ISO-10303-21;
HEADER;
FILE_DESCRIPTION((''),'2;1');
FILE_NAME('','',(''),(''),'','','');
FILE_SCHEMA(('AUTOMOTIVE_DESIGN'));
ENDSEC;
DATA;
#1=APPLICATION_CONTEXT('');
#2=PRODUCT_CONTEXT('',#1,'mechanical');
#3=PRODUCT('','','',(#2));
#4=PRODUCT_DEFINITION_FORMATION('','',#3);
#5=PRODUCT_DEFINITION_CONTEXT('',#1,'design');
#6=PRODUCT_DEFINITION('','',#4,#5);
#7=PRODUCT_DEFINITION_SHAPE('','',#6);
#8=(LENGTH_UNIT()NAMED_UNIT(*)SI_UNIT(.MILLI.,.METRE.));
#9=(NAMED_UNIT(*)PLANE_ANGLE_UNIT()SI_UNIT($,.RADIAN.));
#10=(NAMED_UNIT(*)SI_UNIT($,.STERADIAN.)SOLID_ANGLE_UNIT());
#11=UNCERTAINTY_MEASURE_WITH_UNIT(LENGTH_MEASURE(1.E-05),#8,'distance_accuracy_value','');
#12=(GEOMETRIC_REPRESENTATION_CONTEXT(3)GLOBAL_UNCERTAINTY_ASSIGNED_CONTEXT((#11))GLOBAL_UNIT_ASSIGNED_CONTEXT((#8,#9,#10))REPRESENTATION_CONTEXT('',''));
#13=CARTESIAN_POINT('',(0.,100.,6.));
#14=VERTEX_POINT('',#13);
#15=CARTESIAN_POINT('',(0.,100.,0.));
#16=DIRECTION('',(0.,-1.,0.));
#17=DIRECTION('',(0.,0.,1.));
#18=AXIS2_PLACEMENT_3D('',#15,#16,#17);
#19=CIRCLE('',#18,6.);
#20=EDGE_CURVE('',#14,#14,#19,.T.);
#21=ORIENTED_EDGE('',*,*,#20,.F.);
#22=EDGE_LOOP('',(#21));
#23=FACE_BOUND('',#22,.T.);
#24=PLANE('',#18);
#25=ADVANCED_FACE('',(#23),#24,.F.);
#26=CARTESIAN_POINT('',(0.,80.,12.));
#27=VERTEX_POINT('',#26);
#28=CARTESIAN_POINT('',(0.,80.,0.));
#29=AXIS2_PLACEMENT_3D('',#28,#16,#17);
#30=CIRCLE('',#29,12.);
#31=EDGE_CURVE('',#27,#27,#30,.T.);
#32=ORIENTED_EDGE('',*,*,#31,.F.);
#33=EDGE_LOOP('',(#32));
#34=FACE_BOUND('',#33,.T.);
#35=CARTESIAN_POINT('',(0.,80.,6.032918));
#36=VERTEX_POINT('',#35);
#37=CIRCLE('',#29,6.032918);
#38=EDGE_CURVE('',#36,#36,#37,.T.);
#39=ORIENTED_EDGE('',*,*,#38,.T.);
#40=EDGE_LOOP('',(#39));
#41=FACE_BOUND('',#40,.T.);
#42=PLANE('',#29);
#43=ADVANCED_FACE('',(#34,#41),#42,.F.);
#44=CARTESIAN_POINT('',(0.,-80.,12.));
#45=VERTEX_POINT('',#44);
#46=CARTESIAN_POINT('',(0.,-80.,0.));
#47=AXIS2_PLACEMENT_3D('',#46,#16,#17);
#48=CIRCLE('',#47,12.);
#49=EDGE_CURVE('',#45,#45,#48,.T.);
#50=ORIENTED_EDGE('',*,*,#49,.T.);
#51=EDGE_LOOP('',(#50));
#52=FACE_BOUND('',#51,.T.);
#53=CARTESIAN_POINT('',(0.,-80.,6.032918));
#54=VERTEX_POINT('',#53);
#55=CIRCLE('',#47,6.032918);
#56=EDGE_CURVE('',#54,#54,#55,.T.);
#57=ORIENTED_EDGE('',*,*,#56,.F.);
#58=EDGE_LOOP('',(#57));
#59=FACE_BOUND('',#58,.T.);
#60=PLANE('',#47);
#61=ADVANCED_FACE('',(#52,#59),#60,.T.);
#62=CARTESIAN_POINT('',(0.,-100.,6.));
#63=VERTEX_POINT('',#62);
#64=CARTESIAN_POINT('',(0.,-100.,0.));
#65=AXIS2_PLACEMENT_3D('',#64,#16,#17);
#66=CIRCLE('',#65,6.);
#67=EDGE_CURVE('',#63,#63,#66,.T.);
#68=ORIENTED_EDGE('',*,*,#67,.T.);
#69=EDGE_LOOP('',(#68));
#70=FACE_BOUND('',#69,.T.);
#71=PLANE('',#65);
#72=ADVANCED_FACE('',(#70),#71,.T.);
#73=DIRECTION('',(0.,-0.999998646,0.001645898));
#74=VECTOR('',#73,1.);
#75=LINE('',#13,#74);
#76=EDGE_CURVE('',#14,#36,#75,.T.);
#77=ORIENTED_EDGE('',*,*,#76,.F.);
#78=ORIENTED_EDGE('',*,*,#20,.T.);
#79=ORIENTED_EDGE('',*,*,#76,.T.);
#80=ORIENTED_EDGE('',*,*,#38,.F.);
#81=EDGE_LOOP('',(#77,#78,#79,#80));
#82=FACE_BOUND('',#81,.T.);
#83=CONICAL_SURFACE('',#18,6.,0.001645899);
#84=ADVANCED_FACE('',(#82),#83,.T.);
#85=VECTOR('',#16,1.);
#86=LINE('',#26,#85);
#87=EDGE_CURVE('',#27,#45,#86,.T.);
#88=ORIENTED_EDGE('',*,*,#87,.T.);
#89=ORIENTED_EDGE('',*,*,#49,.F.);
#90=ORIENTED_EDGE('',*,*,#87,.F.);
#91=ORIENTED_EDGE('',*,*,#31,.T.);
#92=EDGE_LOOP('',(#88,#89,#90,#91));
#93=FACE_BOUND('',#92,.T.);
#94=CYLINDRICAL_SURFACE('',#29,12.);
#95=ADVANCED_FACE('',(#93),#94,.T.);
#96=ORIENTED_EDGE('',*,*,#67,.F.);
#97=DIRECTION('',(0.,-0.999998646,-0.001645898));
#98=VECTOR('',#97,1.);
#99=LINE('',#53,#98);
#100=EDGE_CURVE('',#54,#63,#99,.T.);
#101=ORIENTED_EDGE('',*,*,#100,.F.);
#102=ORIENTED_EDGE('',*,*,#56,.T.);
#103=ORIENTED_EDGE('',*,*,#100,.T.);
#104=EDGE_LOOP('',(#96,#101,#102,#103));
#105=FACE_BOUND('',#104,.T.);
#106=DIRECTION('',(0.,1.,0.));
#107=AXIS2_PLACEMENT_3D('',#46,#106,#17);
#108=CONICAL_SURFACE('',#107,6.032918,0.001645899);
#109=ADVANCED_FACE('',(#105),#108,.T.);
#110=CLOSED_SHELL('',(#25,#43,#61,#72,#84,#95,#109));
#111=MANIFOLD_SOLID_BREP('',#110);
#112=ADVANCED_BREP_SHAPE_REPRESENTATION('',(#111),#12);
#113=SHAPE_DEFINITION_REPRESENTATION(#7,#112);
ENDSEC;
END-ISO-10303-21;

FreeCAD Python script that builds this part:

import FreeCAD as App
import Part
import Sketcher


def add_polygon(sketch, points):
    """Adds a closed chain of lines whose ends are joined by coincident constraints."""
    first, n = sketch.GeometryCount, len(points)
    for a, b in zip(points, points[1:] + points[:1]):
        sketch.addGeometry(Part.LineSegment(App.Vector(*a, 0), App.Vector(*b, 0)), False)
    for i in range(n):
        sketch.addConstraint(Sketcher.Constraint("Coincident", first + i, 2, first + (i + 1) % n, 1))

doc = App.newDocument("Part")
params = doc.addObject("Spreadsheet::Sheet", "Params")
for row, (alias, value) in enumerate([
    ("sketch1_width", "200 mm"),
    ("sketch1_height", "6 mm"),
    ("revolution_angle", "360 deg"),
    ("sketch2_width", "160 mm"),
    ("revolution2_angle", "360 deg"),
], start=1):
    params.set(f"A{row}", alias)
    params.set(f"B{row}", "=" + value)
    params.setAlias(f"B{row}", alias)

body = doc.addObject("PartDesign::Body", "Body")

sketch1 = body.newObject("Sketcher::SketchObject", "Sketch")
sketch1.AttachmentSupport = (doc.getObject("YZ_Plane"), [""])
sketch1.MapMode = "FlatFace"
add_polygon(sketch1, [(100, 0), (100, 6), (80, 6), (0, 6), (-80, 6), (-100, 6), (-100, 0)])
sketch1.addConstraint([
    Sketcher.Constraint("Vertical", 0),
    Sketcher.Constraint("Vertical", 5),
    Sketcher.Constraint("Horizontal", 6),
    Sketcher.Constraint("Symmetric", 5, 2, 6, 2, -1, 1),
    Sketcher.Constraint("Symmetric", 1, 2, 3, 2, -2),
    Sketcher.Constraint("PointOnObject", 2, 2, -2),
    Sketcher.Constraint("Parallel", 1, 2),
    Sketcher.Constraint("Parallel", 3, 4),
    Sketcher.Constraint("DistanceX", 6, 1, 6, 2, 200.0),
    Sketcher.Constraint("DistanceY", 0, 1, 0, 2, 6.0),
    Sketcher.Constraint("DistanceX", -1, 1, 1, 2, 80.0),
    Sketcher.Constraint("DistanceY", -1, 1, 2, 2, 6.164591),
])
sketch1.setExpression("Constraints[15]", "Params.sketch1_width")
sketch1.setExpression("Constraints[16]", "Params.sketch1_height")
revolution = body.newObject("PartDesign::Revolution", "Revolution")
revolution.Profile = sketch1
revolution.ReferenceAxis = (sketch1, ["H_Axis"])
revolution.setExpression("Angle", "Params.revolution_angle")

sketch2 = body.newObject("Sketcher::SketchObject", "Sketch001")
sketch2.AttachmentSupport = (doc.getObject("YZ_Plane"), [""])
sketch2.MapMode = "FlatFace"
add_polygon(sketch2, [(0, 6), (80, 6), (80, 12), (-80, 12), (-80, 6)])
sketch2.addConstraint([
    Sketcher.Constraint("Vertical", 1),
    Sketcher.Constraint("Horizontal", 2),
    Sketcher.Constraint("Vertical", 3),
    Sketcher.Constraint("Symmetric", 0, 2, 3, 2, -2),
    Sketcher.Constraint("PointOnObject", 4, 2, -2),
    Sketcher.Constraint("DistanceX", 2, 2, 2, 1, 160.0),
    Sketcher.Constraint("DistanceY", -1, 1, 1, 2, 12.0),
    Sketcher.Constraint("DistanceY", 1, 1, 1, 2, 5.967082),
    Sketcher.Constraint("DistanceY", -1, 1, 4, 2, 6.164591),
])
sketch2.setExpression("Constraints[10]", "Params.sketch2_width")
revolution2 = body.newObject("PartDesign::Revolution", "Revolution001")
revolution2.Profile = sketch2
revolution2.ReferenceAxis = (sketch2, ["H_Axis"])
revolution2.setExpression("Angle", "Params.revolution2_angle")

doc.recompute()
